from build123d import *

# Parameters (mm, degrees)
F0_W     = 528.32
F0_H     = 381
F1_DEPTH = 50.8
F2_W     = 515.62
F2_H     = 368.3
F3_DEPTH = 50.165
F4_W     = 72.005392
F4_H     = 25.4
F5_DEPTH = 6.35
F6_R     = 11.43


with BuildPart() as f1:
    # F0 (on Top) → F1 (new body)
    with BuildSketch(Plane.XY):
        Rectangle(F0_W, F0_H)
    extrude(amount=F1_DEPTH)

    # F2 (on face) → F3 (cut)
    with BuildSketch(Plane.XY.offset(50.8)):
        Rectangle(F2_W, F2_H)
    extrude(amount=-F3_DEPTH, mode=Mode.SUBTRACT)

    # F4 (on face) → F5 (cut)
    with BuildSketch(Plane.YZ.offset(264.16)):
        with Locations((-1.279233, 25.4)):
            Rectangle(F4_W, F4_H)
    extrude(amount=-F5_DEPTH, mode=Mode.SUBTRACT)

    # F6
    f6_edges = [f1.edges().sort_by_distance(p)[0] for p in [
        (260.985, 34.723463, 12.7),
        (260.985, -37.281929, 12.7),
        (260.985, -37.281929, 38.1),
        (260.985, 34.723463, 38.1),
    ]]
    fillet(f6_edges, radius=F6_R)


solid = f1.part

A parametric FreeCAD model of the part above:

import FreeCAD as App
import Part
import Sketcher
from FreeCAD import Vector
Q = App.Units.Quantity


def edges_at(feature, points):
    """Names of the edges that pass closest to the given points."""
    edges = feature.Shape.Edges
    near = lambda p: min(range(len(edges)), key=lambda i: edges[i].distToShape(Part.Vertex(*p))[0])
    return sorted({f"Edge{near(p) + 1}" for p in points})

doc = App.newDocument("Part")
params = doc.addObject("Spreadsheet::Sheet", "Params")
for row, (alias, value) in enumerate([
    ("sketch1_height", "15 in"),
    ("sketch1_width", "20.8 in"),
    ("pad1_length", "2 in"),
    ("sketch2_width", "20.3 in"),
    ("sketch2_height", "14.5 in"),
    ("pocket1_length", "1.975 in"),
    ("sketch3_height", "1 in"),
    ("pocket2_length", "0.25 in"),
    ("fillet_radius", "0.45 in"),
], start=1):
    params.set(f"A{row}", alias)
    params.set(f"B{row}", "=" + value)
    params.setAlias(f"B{row}", alias)

body = doc.addObject("PartDesign::Body", "Body")

# Sketch on XY plane
sketch1 = body.newObject("Sketcher::SketchObject", "Sketch")
sketch1.AttachmentSupport = (doc.getObject("XY_Plane"), [""])
sketch1.MapMode = "FlatFace"
sketch1.addGeometry(Part.LineSegment(Vector(-264, 190, 0), Vector(-264, -190, 0)), False)
sketch1.addGeometry(Part.LineSegment(Vector(-264, -190, 0), Vector(264, -190, 0)), False)
sketch1.addGeometry(Part.LineSegment(Vector(264, -190, 0), Vector(264, 190, 0)), False)
sketch1.addGeometry(Part.LineSegment(Vector(264, 190, 0), Vector(-264, 190, 0)), False)
sketch1.addConstraint(Sketcher.Constraint("Coincident", 0, 2, 1, 1))
sketch1.addConstraint(Sketcher.Constraint("Coincident", 1, 2, 2, 1))
sketch1.addConstraint(Sketcher.Constraint("Coincident", 2, 2, 3, 1))
sketch1.addConstraint(Sketcher.Constraint("Coincident", 3, 2, 0, 1))
sketch1.addConstraint(Sketcher.Constraint("Vertical", 0))
sketch1.addConstraint(Sketcher.Constraint("Horizontal", 1))
sketch1.addConstraint(Sketcher.Constraint("Vertical", 2))
sketch1.addConstraint(Sketcher.Constraint("Horizontal", 3))
sketch1.addConstraint(Sketcher.Constraint("Symmetric", 0, 2, 2, 2, -1, 1))
sketch1.addConstraint(Sketcher.Constraint("DistanceY", 0, 2, 0, 1, Q("15 in")))
sketch1.addConstraint(Sketcher.Constraint("DistanceX", 1, 1, 1, 2, Q("20.8 in")))
sketch1.setExpression("Constraints[9]", "Params.sketch1_height")
sketch1.setExpression("Constraints[10]", "Params.sketch1_width")
pad1 = body.newObject("PartDesign::Pad", "Pad")
pad1.Profile = sketch1
pad1.setExpression("Length", "Params.pad1_length")

# Sketch on XY plane
sketch2 = body.newObject("Sketcher::SketchObject", "Sketch001")
sketch2.AttachmentSupport = (doc.getObject("XY_Plane"), [""])
sketch2.MapMode = "FlatFace"
sketch2.AttachmentOffset = App.Placement(Vector(0, 0, 2 * 25.4), App.Rotation())
sketch2.addGeometry(Part.LineSegment(Vector(-258, 184, 0), Vector(-258, -184, 0)), False)
sketch2.addGeometry(Part.LineSegment(Vector(-258, -184, 0), Vector(258, -184, 0)), False)
sketch2.addGeometry(Part.LineSegment(Vector(258, -184, 0), Vector(258, 184, 0)), False)
sketch2.addGeometry(Part.LineSegment(Vector(258, 184, 0), Vector(-258, 184, 0)), False)
sketch2.addConstraint(Sketcher.Constraint("Coincident", 0, 2, 1, 1))
sketch2.addConstraint(Sketcher.Constraint("Coincident", 1, 2, 2, 1))
sketch2.addConstraint(Sketcher.Constraint("Coincident", 2, 2, 3, 1))
sketch2.addConstraint(Sketcher.Constraint("Coincident", 3, 2, 0, 1))
sketch2.addConstraint(Sketcher.Constraint("Vertical", 0))
sketch2.addConstraint(Sketcher.Constraint("Horizontal", 1))
sketch2.addConstraint(Sketcher.Constraint("Vertical", 2))
sketch2.addConstraint(Sketcher.Constraint("Horizontal", 3))
sketch2.addConstraint(Sketcher.Constraint("Symmetric", 0, 2, 2, 2, -1, 1))
sketch2.addConstraint(Sketcher.Constraint("DistanceX", 1, 1, 1, 2, Q("20.3 in")))
sketch2.addConstraint(Sketcher.Constraint("DistanceY", 0, 2, 0, 1, Q("14.5 in")))
sketch2.setExpression("Constraints[9]", "Params.sketch2_width")
sketch2.setExpression("Constraints[10]", "Params.sketch2_height")
pocket1 = body.newObject("PartDesign::Pocket", "Pocket")
pocket1.Profile = sketch2
pocket1.setExpression("Length", "Params.pocket1_length")

# Sketch on YZ plane
sketch3 = body.newObject("Sketcher::SketchObject", "Sketch002")
sketch3.AttachmentSupport = (doc.getObject("YZ_Plane"), [""])
sketch3.MapMode = "FlatFace"
sketch3.AttachmentOffset = App.Placement(Vector(0, 0, 10.4 * 25.4), App.Rotation())
sketch3.addGeometry(Part.LineSegment(Vector(-37, 38, 0), Vector(-37, 13, 0)), False)
sketch3.addGeometry(Part.LineSegment(Vector(-37, 13, 0), Vector(35, 13, 0)), False)
sketch3.addGeometry(Part.LineSegment(Vector(35, 13, 0), Vector(35, 38, 0)), False)
sketch3.addGeometry(Part.LineSegment(Vector(35, 38, 0), Vector(-37, 38, 0)), False)
sketch3.addConstraint(Sketcher.Constraint("Coincident", 0, 2, 1, 1))
sketch3.addConstraint(Sketcher.Constraint("Coincident", 1, 2, 2, 1))
sketch3.addConstraint(Sketcher.Constraint("Coincident", 2, 2, 3, 1))
sketch3.addConstraint(Sketcher.Constraint("Coincident", 3, 2, 0, 1))
sketch3.addConstraint(Sketcher.Constraint("Vertical", 0))
sketch3.addConstraint(Sketcher.Constraint("Horizontal", 1))
sketch3.addConstraint(Sketcher.Constraint("Vertical", 2))
sketch3.addConstraint(Sketcher.Constraint("Horizontal", 3))
sketch3.addConstraint(Sketcher.Constraint("DistanceY", 0, 2, 0, 1, Q("1 in")))
sketch3.addConstraint(Sketcher.Constraint("DistanceY", -1, 1, 0, 2, Q("0.5 in")))
sketch3.addConstraint(Sketcher.Constraint("DistanceX", 1, 1, 1, 2, 72.005392))
sketch3.addConstraint(Sketcher.Constraint("DistanceX", 0, 2, -1, 1, 37.281929))
sketch3.setExpression("Constraints[8]", "Params.sketch3_height")
pocket2 = body.newObject("PartDesign::Pocket", "Pocket001")
pocket2.Profile = sketch3
pocket2.setExpression("Length", "Params.pocket2_length")
doc.recompute()

fillet = body.newObject("PartDesign::Fillet", "Fillet")
fillet.Base = (pocket2, edges_at(pocket2, [
    (260.985, 34.723, 12.7),
    (260.985, -37.282, 12.7),
    (260.985, -37.282, 38.1),
    (260.985, 34.723, 38.1),
]))
fillet.setExpression("Radius", "Params.fillet_radius")

doc.recompute()
